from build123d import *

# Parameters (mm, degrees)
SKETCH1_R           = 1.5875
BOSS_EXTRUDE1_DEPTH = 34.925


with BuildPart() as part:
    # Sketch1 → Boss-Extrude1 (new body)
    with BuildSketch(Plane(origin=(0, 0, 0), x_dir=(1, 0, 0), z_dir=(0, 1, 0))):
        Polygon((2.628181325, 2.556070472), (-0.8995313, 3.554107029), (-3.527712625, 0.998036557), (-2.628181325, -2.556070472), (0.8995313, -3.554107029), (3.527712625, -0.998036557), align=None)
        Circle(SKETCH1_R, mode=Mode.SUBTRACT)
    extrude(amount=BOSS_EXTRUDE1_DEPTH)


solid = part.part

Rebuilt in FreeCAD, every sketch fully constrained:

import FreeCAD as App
import Part
import Sketcher

V = App.Vector
Q = App.Units.Quantity

doc = App.newDocument("Part")
body = doc.addObject("PartDesign::Body", "Body")

sketch1 = body.newObject("Sketcher::SketchObject", "Sketch")
sketch1.AttachmentSupport = (doc.getObject("XZ_Plane"), [""])
sketch1.MapMode = "FlatFace"
sketch1.addGeometry([
    Part.LineSegment(V(2.6, -2.6, 0), V(-0.9, -3.6, 0)),
    Part.LineSegment(V(-0.9, -3.6, 0), V(-3.5, -1, 0)),
    Part.LineSegment(V(-3.5, -1, 0), V(-2.6, 2.6, 0)),
    Part.LineSegment(V(-2.6, 2.6, 0), V(0.9, 3.6, 0)),
    Part.LineSegment(V(0.9, 3.6, 0), V(3.5, 1, 0)),
    Part.LineSegment(V(3.5, 1, 0), V(2.6, -2.6, 0)),
    Part.Circle(V(0, 0, 0), V(0, 0, 1), 1.6),
], False)
sketch1.addConstraint([
    Sketcher.Constraint("Coincident", 0, 2, 1, 1),
    Sketcher.Constraint("Coincident", 1, 2, 2, 1),
    Sketcher.Constraint("Coincident", 2, 2, 3, 1),
    Sketcher.Constraint("Coincident", 3, 2, 4, 1),
    Sketcher.Constraint("Coincident", 4, 2, 5, 1),
    Sketcher.Constraint("Coincident", 5, 2, 0, 1),
    Sketcher.Constraint("Coincident", 6, 3, -1, 1),
    Sketcher.Constraint("Symmetric", 0, 2, 3, 2, -1, 1),
    Sketcher.Constraint("Symmetric", 1, 2, 4, 2, -1, 1),
    Sketcher.Constraint("Symmetric", 2, 2, 5, 2, -1, 1),
    Sketcher.Constraint("Equal", 0, 1),
    Sketcher.Constraint("Equal", 1, 2),
    Sketcher.Constraint("Diameter", 6, Q("0.125 in")),
    Sketcher.Constraint("DistanceX", 0, 2, -1, 1, Q("0.899531 mm")),
    Sketcher.Constraint("DistanceX", 2, 2, -1, 1, Q("2.628181 mm")),
    Sketcher.Constraint("DistanceY", -1, 1, 2, 2, Q("2.55607 mm")),
    Sketcher.Constraint("DistanceX", 1, 2, 0, 2, Q("2.628181 mm")),
])
pad1 = body.newObject("PartDesign::Pad", "Pad")
pad1.Profile = sketch1
pad1.Length = Q("1.375 in")
pad1.Reversed = True

doc.recompute()
